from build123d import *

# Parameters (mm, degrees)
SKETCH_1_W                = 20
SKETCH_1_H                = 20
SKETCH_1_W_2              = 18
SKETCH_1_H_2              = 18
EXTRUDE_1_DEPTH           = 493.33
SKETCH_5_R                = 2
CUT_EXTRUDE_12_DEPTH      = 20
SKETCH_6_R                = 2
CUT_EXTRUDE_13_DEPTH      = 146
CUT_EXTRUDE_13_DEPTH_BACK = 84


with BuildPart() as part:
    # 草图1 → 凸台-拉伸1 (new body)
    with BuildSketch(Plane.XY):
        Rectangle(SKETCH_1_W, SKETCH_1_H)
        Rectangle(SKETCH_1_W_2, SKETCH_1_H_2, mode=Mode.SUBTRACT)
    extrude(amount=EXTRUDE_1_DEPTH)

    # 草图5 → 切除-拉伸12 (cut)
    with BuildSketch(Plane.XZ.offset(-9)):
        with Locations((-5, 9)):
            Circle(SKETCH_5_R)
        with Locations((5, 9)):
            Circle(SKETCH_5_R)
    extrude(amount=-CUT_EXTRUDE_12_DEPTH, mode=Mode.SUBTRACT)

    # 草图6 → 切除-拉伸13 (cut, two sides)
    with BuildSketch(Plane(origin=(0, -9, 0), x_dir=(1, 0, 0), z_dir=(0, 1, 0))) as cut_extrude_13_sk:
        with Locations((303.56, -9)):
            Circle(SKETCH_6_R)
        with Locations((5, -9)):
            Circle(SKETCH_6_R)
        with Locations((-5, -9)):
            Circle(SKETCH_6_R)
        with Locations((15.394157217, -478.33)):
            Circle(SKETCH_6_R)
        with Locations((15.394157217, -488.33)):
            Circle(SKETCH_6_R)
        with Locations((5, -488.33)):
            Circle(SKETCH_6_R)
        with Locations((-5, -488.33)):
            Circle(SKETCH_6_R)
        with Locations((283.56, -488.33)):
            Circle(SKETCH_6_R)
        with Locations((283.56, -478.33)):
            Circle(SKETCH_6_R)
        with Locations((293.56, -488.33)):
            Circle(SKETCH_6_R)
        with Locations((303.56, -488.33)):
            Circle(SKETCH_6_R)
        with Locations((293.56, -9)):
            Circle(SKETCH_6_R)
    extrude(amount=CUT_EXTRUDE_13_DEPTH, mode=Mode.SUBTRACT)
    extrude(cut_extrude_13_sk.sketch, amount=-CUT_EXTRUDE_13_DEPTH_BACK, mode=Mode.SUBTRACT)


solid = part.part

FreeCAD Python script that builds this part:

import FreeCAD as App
import Part
import Sketcher
Q = App.Units.Quantity

doc = App.newDocument("Part")
params = doc.addObject("Spreadsheet::Sheet", "Params")
for row, (alias, value) in enumerate([
    ("sketch1_width", "20 mm"),
    ("sketch1_width2", "18 mm"),
    ("pad1_length", "493.33 mm"),
    ("sketch2_diameter", "4 mm"),
    ("pocket1_length", "20 mm"),
    ("sketch3_diameter", "4 mm"),
], start=1):
    params.set(f"A{row}", alias)
    params.set(f"B{row}", "=" + value)
    params.setAlias(f"B{row}", alias)

body = doc.addObject("PartDesign::Body", "Body")

# Sketch on XY plane
sketch1 = body.newObject("Sketcher::SketchObject", "Sketch")
sketch1.AttachmentSupport = (doc.getObject("XY_Plane"), [""])
sketch1.MapMode = "FlatFace"
sketch1.addGeometry([
    Part.LineSegment(App.Vector(-10, 10, 0), App.Vector(-10, -10, 0)),  # 0
    Part.LineSegment(App.Vector(-10, -10, 0), App.Vector(10, -10, 0)),  # 1
    Part.LineSegment(App.Vector(10, -10, 0), App.Vector(10, 10, 0)),  # 2
    Part.LineSegment(App.Vector(10, 10, 0), App.Vector(-10, 10, 0)),  # 3
    Part.LineSegment(App.Vector(9, -9, 0), App.Vector(-9, -9, 0)),  # 4
    Part.LineSegment(App.Vector(-9, -9, 0), App.Vector(-9, 9, 0)),  # 5
    Part.LineSegment(App.Vector(-9, 9, 0), App.Vector(9, 9, 0)),  # 6
    Part.LineSegment(App.Vector(9, 9, 0), App.Vector(9, -9, 0)),  # 7
], False)
sketch1.addConstraint([
    Sketcher.Constraint("Coincident", 0, 2, 1, 1),
    Sketcher.Constraint("Coincident", 1, 2, 2, 1),
    Sketcher.Constraint("Coincident", 2, 2, 3, 1),
    Sketcher.Constraint("Coincident", 3, 2, 0, 1),
    Sketcher.Constraint("Coincident", 4, 2, 5, 1),
    Sketcher.Constraint("Coincident", 5, 2, 6, 1),
    Sketcher.Constraint("Coincident", 6, 2, 7, 1),
    Sketcher.Constraint("Coincident", 7, 2, 4, 1),
    Sketcher.Constraint("Vertical", 0),
    Sketcher.Constraint("Horizontal", 1),
    Sketcher.Constraint("Vertical", 2),
    Sketcher.Constraint("Horizontal", 3),
    Sketcher.Constraint("Horizontal", 4),
    Sketcher.Constraint("Vertical", 5),
    Sketcher.Constraint("Horizontal", 6),
    Sketcher.Constraint("Vertical", 7),
    Sketcher.Constraint("Symmetric", 0, 2, 2, 2, -1, 1),
    Sketcher.Constraint("Symmetric", 4, 2, 6, 2, -1, 1),
    Sketcher.Constraint("Equal", 3, 0),
    Sketcher.Constraint("Equal", 6, 5),
    Sketcher.Constraint("DistanceX", 1, 1, 1, 2, Q("20 mm")),
    Sketcher.Constraint("DistanceX", 4, 2, 4, 1, Q("18 mm")),
])
sketch1.setExpression("Constraints[20]", "Params.sketch1_width")
sketch1.setExpression("Constraints[21]", "Params.sketch1_width2")
pad1 = body.newObject("PartDesign::Pad", "Pad")
pad1.Profile = sketch1
pad1.setExpression("Length", "Params.pad1_length")

# Sketch on XZ plane
sketch2 = body.newObject("Sketcher::SketchObject", "Sketch001")
sketch2.AttachmentSupport = (doc.getObject("XZ_Plane"), [""])
sketch2.MapMode = "FlatFace"
sketch2.AttachmentOffset = App.Placement(App.Vector(0, 0, -9), App.Rotation())
sketch2.addGeometry([
    Part.Circle(App.Vector(-5, 9, 0), App.Vector(0, 0, 1), 2),
    Part.Circle(App.Vector(5, 9, 0), App.Vector(0, 0, 1), 2),
], False)
sketch2.addConstraint([
    Sketcher.Constraint("Equal", 0, 1),
    Sketcher.Constraint("Symmetric", 0, 3, 1, 3, -2),
    Sketcher.Constraint("Diameter", 0, Q("4 mm")),
    Sketcher.Constraint("DistanceX", 0, 3, -1, 1, Q("5 mm")),
    Sketcher.Constraint("DistanceY", -1, 1, 0, 3, Q("9 mm")),
])
sketch2.setExpression("Constraints[2]", "Params.sketch2_diameter")
pocket1 = body.newObject("PartDesign::Pocket", "Pocket")
pocket1.Profile = sketch2
pocket1.setExpression("Length", "Params.pocket1_length")

# Sketch on XZ plane
sketch3 = body.newObject("Sketcher::SketchObject", "Sketch002")
sketch3.AttachmentSupport = (doc.getObject("XZ_Plane"), [""])
sketch3.MapMode = "FlatFace"
sketch3.AttachmentOffset = App.Placement(App.Vector(0, 0, 9), App.Rotation())
sketch3.addGeometry([
    Part.Circle(App.Vector(303.6, 9, 0), App.Vector(0, 0, 1), 2),  # 0
    Part.Circle(App.Vector(5, 9, 0), App.Vector(0, 0, 1), 2),  # 1
    Part.Circle(App.Vector(-5, 9, 0), App.Vector(0, 0, 1), 2),  # 2
    Part.Circle(App.Vector(15.4, 478.3, 0), App.Vector(0, 0, 1), 2),  # 3
    Part.Circle(App.Vector(15.4, 488.3, 0), App.Vector(0, 0, 1), 2),  # 4
    Part.Circle(App.Vector(5, 488.3, 0), App.Vector(0, 0, 1), 2),  # 5
    Part.Circle(App.Vector(-5, 488.3, 0), App.Vector(0, 0, 1), 2),  # 6
    Part.Circle(App.Vector(283.6, 488.3, 0), App.Vector(0, 0, 1), 2),  # 7
    Part.Circle(App.Vector(283.6, 478.3, 0), App.Vector(0, 0, 1), 2),  # 8
    Part.Circle(App.Vector(293.6, 488.3, 0), App.Vector(0, 0, 1), 2),  # 9
    Part.Circle(App.Vector(303.6, 488.3, 0), App.Vector(0, 0, 1), 2),  # 10
    Part.Circle(App.Vector(293.6, 9, 0), App.Vector(0, 0, 1), 2),  # 11
], False)
sketch3.addConstraint([
    Sketcher.Constraint("Equal", 0, 1),
    Sketcher.Constraint("Equal", 1, 2),
    Sketcher.Constraint("Equal", 2, 3),
    Sketcher.Constraint("Equal", 3, 4),
    Sketcher.Constraint("Equal", 4, 5),
    Sketcher.Constraint("Equal", 5, 6),
    Sketcher.Constraint("Equal", 6, 7),
    Sketcher.Constraint("Equal", 7, 8),
    Sketcher.Constraint("Equal", 8, 9),
    Sketcher.Constraint("Equal", 9, 10),
    Sketcher.Constraint("Equal", 10, 11),
    Sketcher.Constraint("Symmetric", 1, 3, 2, 3, -2),
    Sketcher.Constraint("Symmetric", 5, 3, 6, 3, -2),
    Sketcher.Constraint("Horizontal", 0, 3, 1, 3),
    Sketcher.Constraint("Horizontal", 4, 3, 5, 3),
    Sketcher.Constraint("Horizontal", 6, 3, 7, 3),
    Sketcher.Constraint("Horizontal", 3, 3, 8, 3),
    Sketcher.Constraint("Horizontal", 7, 3, 9, 3),
    Sketcher.Constraint("Horizontal", 9, 3, 10, 3),
    Sketcher.Constraint("Horizontal", 2, 3, 11, 3),
    Sketcher.Constraint("Vertical", 3, 3, 4, 3),
    Sketcher.Constraint("Vertical", 1, 3, 5, 3),
    Sketcher.Constraint("Vertical", 7, 3, 8, 3),
    Sketcher.Constraint("Vertical", 0, 3, 10, 3),
    Sketcher.Constraint("Vertical", 9, 3, 11, 3),
    Sketcher.Constraint("Diameter", 0, Q("4 mm")),
    Sketcher.Constraint("DistanceY", -1, 1, 0, 3, Q("9 mm")),
    Sketcher.Constraint("DistanceX", -1, 1, 1, 3, Q("5 mm")),
    Sketcher.Constraint("DistanceY", 3, 3, 4, 3, Q("10 mm")),
    Sketcher.Constraint("DistanceX", 7, 3, 0, 3, Q("20 mm")),
    Sketcher.Constraint("DistanceX", 7, 3, 9, 3, Q("10 mm")),
    Sketcher.Constraint("DistanceX", -1, 1, 0, 3, Q("303.56 mm")),
    Sketcher.Constraint("DistanceY", -1, 1, 3, 3, Q("478.33 mm")),
    Sketcher.Constraint("DistanceX", -1, 1, 3, 3, Q("15.394157 mm")),
])
sketch3.setExpression("Constraints[25]", "Params.sketch3_diameter")
pocket2 = body.newObject("PartDesign::Pocket", "Pocket001")
pocket2.Profile = sketch3
pocket2.Type = "ThroughAll"
pocket2.Midplane = True

doc.recompute()
